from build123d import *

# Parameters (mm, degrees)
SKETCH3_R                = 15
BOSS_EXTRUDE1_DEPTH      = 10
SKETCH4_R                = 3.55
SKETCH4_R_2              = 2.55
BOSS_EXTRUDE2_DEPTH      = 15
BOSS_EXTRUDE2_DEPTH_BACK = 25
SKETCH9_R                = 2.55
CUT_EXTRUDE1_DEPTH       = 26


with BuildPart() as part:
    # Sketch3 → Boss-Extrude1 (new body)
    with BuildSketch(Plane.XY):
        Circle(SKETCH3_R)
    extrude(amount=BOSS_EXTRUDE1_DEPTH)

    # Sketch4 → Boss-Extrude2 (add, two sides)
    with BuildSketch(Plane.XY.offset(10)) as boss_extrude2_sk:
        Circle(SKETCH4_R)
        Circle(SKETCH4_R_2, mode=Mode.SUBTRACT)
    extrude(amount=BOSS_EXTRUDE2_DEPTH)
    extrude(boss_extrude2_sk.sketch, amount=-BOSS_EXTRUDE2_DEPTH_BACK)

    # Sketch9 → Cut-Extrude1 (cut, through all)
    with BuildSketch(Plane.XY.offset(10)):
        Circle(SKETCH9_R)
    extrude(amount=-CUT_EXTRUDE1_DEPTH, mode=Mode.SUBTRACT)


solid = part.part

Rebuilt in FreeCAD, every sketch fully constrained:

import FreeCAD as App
import Part
import Sketcher

V = App.Vector

doc = App.newDocument("Part")
params = doc.addObject("Spreadsheet::Sheet", "Params")
for row, (alias, value) in enumerate([
    ("sketch1_diameter", "30 mm"),
    ("pad1_length", "10 mm"),
    ("sketch2_diameter", "7.1 mm"),
    ("sketch2_diameter2", "5.1 mm"),
    ("pad2_length", "15 mm"),
    ("pad2_length2", "25 mm"),
    ("sketch3_diameter", "5.1 mm"),
], start=1):
    params.set(f"A{row}", alias)
    params.set(f"B{row}", "=" + value)
    params.setAlias(f"B{row}", alias)

body = doc.addObject("PartDesign::Body", "Body")

# Sketch on XY plane
sketch1 = body.newObject("Sketcher::SketchObject", "Sketch")
sketch1.AttachmentSupport = (doc.getObject("XY_Plane"), [""])
sketch1.MapMode = "FlatFace"
sketch1.addGeometry(Part.Circle(V(0, 0, 0), V(0, 0, 1), 15), False)
sketch1.addConstraint([
    Sketcher.Constraint("Coincident", 0, 3, -1, 1),
    Sketcher.Constraint("Diameter", 0, 30.0),
])
sketch1.setExpression("Constraints[1]", "Params.sketch1_diameter")
pad1 = body.newObject("PartDesign::Pad", "Pad")
pad1.Profile = sketch1
pad1.setExpression("Length", "Params.pad1_length")

# Sketch on XY plane
sketch2 = body.newObject("Sketcher::SketchObject", "Sketch001")
sketch2.AttachmentSupport = (doc.getObject("XY_Plane"), [""])
sketch2.MapMode = "FlatFace"
sketch2.AttachmentOffset = App.Placement(V(0, 0, 10), App.Rotation())
sketch2.addGeometry([
    Part.Circle(V(0, 0, 0), V(0, 0, 1), 3.5),
    Part.Circle(V(0, 0, 0), V(0, 0, 1), 2.5),
], False)
sketch2.addConstraint([
    Sketcher.Constraint("Coincident", 0, 3, -1, 1),
    Sketcher.Constraint("Coincident", 1, 3, -1, 1),
    Sketcher.Constraint("Diameter", 0, 7.1),
    Sketcher.Constraint("Diameter", 1, 5.1),
])
sketch2.setExpression("Constraints[2]", "Params.sketch2_diameter")
sketch2.setExpression("Constraints[3]", "Params.sketch2_diameter2")
pad2 = body.newObject("PartDesign::Pad", "Pad001")
pad2.Profile = sketch2
pad2.Type = "TwoLengths"
pad2.setExpression("Length", "Params.pad2_length")
pad2.setExpression("Length2", "Params.pad2_length2")

# Sketch on XY plane
sketch3 = body.newObject("Sketcher::SketchObject", "Sketch002")
sketch3.AttachmentSupport = (doc.getObject("XY_Plane"), [""])
sketch3.MapMode = "FlatFace"
sketch3.AttachmentOffset = App.Placement(V(0, 0, 10), App.Rotation())
sketch3.addGeometry(Part.Circle(V(0, 0, 0), V(0, 0, 1), 2.5), False)
sketch3.addConstraint([
    Sketcher.Constraint("Coincident", 0, 3, -1, 1),
    Sketcher.Constraint("Diameter", 0, 5.1),
])
sketch3.setExpression("Constraints[1]", "Params.sketch3_diameter")
pocket1 = body.newObject("PartDesign::Pocket", "Pocket")
pocket1.Profile = sketch3
pocket1.Type = "ThroughAll"

doc.recompute()
